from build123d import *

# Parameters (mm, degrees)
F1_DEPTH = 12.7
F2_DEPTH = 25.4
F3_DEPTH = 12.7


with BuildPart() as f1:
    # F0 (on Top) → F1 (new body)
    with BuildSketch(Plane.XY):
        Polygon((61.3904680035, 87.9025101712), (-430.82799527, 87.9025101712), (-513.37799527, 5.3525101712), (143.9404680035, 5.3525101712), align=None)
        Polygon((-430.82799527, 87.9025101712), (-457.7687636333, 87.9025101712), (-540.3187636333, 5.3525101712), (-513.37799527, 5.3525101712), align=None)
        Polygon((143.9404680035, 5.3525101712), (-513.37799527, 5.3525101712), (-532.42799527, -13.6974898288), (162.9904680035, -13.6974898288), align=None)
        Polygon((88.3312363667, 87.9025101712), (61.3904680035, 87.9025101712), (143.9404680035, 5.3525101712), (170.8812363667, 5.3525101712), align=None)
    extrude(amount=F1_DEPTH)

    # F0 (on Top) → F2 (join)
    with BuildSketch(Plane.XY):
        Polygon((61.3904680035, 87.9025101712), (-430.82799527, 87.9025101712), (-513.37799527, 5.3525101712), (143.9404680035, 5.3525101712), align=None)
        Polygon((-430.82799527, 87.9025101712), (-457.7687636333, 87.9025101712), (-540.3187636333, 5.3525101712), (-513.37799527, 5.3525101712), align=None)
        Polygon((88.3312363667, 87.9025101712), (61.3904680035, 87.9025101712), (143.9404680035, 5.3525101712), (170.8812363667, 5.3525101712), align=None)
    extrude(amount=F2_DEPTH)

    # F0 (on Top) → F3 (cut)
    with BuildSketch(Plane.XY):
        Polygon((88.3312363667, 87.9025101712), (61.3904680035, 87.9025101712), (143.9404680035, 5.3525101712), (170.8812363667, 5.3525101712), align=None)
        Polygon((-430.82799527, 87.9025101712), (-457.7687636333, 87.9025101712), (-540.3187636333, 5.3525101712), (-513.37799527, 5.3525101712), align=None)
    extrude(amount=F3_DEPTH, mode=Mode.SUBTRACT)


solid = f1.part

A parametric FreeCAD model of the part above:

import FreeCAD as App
import Part
import Sketcher
from FreeCAD import Vector
Q = App.Units.Quantity


def add_polygon(sketch, points):
    """Adds a closed chain of lines whose ends are joined by coincident constraints."""
    first, n = sketch.GeometryCount, len(points)
    for a, b in zip(points, points[1:] + points[:1]):
        sketch.addGeometry(Part.LineSegment(App.Vector(*a, 0), App.Vector(*b, 0)), False)
    for i in range(n):
        sketch.addConstraint(Sketcher.Constraint("Coincident", first + i, 2, first + (i + 1) % n, 1))

doc = App.newDocument("Part")
body = doc.addObject("PartDesign::Body", "Body")

sketch1 = doc.addObject("Sketcher::SketchObject", "Sketch")
body.addObject(sketch1)
sketch1.AttachmentSupport = (doc.XY_Plane, [""])
sketch1.MapMode = "FlatFace"
add_polygon(sketch1, [(-458, 88), (-540, 5), (-513, 5), (-532, -14), (163, -14), (144, 5), (171, 5), (88, 88)])
sketch1.addConstraint(Sketcher.Constraint("Horizontal", 1))
sketch1.addConstraint(Sketcher.Constraint("Horizontal", 3))
sketch1.addConstraint(Sketcher.Constraint("Horizontal", 5))
sketch1.addConstraint(Sketcher.Constraint("Horizontal", 7))
sketch1.addConstraint(Sketcher.Constraint("Parallel", 0, 2))
sketch1.addConstraint(Sketcher.Constraint("Perpendicular", 2, 4))
sketch1.addConstraint(Sketcher.Constraint("Parallel", 4, 6))
sketch1.addConstraint(Sketcher.Constraint("Horizontal", 1, 2, 4, 2))
sketch1.addConstraint(Sketcher.Constraint("Equal", 1, 5))
sketch1.addConstraint(Sketcher.Constraint("Equal", 2, 4))
sketch1.addConstraint(Sketcher.Constraint("DistanceX", 7, 2, 7, 1, Q("21.5 in")))
sketch1.addConstraint(Sketcher.Constraint("DistanceX", 0, 2, 5, 2, Q("28 in")))
sketch1.addConstraint(Sketcher.Constraint("DistanceY", 3, 2, 6, 2, Q("4 in")))
sketch1.addConstraint(Sketcher.Constraint("DistanceX", 1, 1, 1, 2, 26.940768))
sketch1.addConstraint(Sketcher.Constraint("DistanceY", -1, 1, 0, 2, 5.35251))
sketch1.addConstraint(Sketcher.Constraint("DistanceX", -1, 1, 3, 2, 162.990468))
pad1 = doc.addObject("PartDesign::Pad", "Pad")
body.addObject(pad1)
pad1.Profile = sketch1
pad1.Length = Q("0.5 in")

sketch2 = doc.addObject("Sketcher::SketchObject", "Sketch001")
body.addObject(sketch2)
sketch2.AttachmentSupport = (doc.XY_Plane, [""])
sketch2.MapMode = "FlatFace"
add_polygon(sketch2, [(-458, 88), (-540, 5), (171, 5), (88, 88)])
sketch2.addConstraint(Sketcher.Constraint("Horizontal", 1))
sketch2.addConstraint(Sketcher.Constraint("Horizontal", 3))
sketch2.addConstraint(Sketcher.Constraint("Perpendicular", 0, 2))
sketch2.addConstraint(Sketcher.Constraint("Equal", 0, 2))
sketch2.addConstraint(Sketcher.Constraint("DistanceX", 1, 1, 1, 2, Q("28 in")))
sketch2.addConstraint(Sketcher.Constraint("DistanceX", 3, 2, 3, 1, Q("21.5 in")))
sketch2.addConstraint(Sketcher.Constraint("DistanceY", -1, 1, 0, 2, 5.35251))
sketch2.addConstraint(Sketcher.Constraint("DistanceX", 0, 2, -1, 1, 540.318764))
pad2 = doc.addObject("PartDesign::Pad", "Pad001")
body.addObject(pad2)
pad2.Profile = sketch2
pad2.Length = Q("1 in")

sketch3 = doc.addObject("Sketcher::SketchObject", "Sketch002")
body.addObject(sketch3)
sketch3.AttachmentSupport = (doc.XY_Plane, [""])
sketch3.MapMode = "FlatFace"
add_polygon(sketch3, [(88, 88), (61, 88), (144, 5), (171, 5)])
add_polygon(sketch3, [(-431, 88), (-458, 88), (-540, 5), (-513, 5)])
sketch3.addConstraint(Sketcher.Constraint("Horizontal", 0))
sketch3.addConstraint(Sketcher.Constraint("Horizontal", 2))
sketch3.addConstraint(Sketcher.Constraint("Horizontal", 4))
sketch3.addConstraint(Sketcher.Constraint("Horizontal", 6))
sketch3.addConstraint(Sketcher.Constraint("Parallel", 1, 3))
sketch3.addConstraint(Sketcher.Constraint("Perpendicular", 3, 5))
sketch3.addConstraint(Sketcher.Constraint("Parallel", 5, 7))
sketch3.addConstraint(Sketcher.Constraint("Horizontal", 3, 2, 4, 2))
sketch3.addConstraint(Sketcher.Constraint("Horizontal", 2, 2, 5, 2))
sketch3.addConstraint(Sketcher.Constraint("Equal", 2, 4))
sketch3.addConstraint(Sketcher.Constraint("Equal", 3, 5))
sketch3.addConstraint(Sketcher.Constraint("DistanceX", 5, 2, 2, 2, Q("28 in")))
sketch3.addConstraint(Sketcher.Constraint("DistanceX", 4, 2, 3, 2, Q("21.5 in")))
sketch3.addConstraint(Sketcher.Constraint("DistanceX", 0, 2, 0, 1, 26.940768))
sketch3.addConstraint(Sketcher.Constraint("DistanceX", -1, 1, 0, 2, 61.390468))
sketch3.addConstraint(Sketcher.Constraint("DistanceY", -1, 1, 0, 2, 87.90251))
pocket1 = doc.addObject("PartDesign::Pocket", "Pocket")
body.addObject(pocket1)
pocket1.Profile = sketch3
pocket1.Length = Q("0.5 in")
pocket1.Reversed = True

doc.recompute()
